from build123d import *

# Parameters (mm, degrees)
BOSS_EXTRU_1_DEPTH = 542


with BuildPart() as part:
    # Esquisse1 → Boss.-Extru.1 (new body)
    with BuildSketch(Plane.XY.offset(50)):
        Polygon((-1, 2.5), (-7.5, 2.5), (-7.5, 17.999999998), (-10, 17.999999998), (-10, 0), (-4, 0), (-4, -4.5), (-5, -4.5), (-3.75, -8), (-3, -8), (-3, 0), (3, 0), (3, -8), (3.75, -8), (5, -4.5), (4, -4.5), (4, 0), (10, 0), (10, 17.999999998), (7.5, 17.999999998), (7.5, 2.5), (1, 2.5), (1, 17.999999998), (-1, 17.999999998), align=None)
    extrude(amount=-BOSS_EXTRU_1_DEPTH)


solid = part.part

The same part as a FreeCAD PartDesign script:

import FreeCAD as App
import Part
import Sketcher
from FreeCAD import Vector


def add_polygon(sketch, points):
    """Adds a closed chain of lines whose ends are joined by coincident constraints."""
    first, n = sketch.GeometryCount, len(points)
    for a, b in zip(points, points[1:] + points[:1]):
        sketch.addGeometry(Part.LineSegment(App.Vector(*a, 0), App.Vector(*b, 0)), False)
    for i in range(n):
        sketch.addConstraint(Sketcher.Constraint("Coincident", first + i, 2, first + (i + 1) % n, 1))

doc = App.newDocument("Part")
body = doc.addObject("PartDesign::Body", "Body")

# Sketch on XY plane
sketch1 = doc.addObject("Sketcher::SketchObject", "Sketch")
body.addObject(sketch1)
sketch1.AttachmentSupport = (doc.XY_Plane, [""])
sketch1.MapMode = "FlatFace"
sketch1.AttachmentOffset = App.Placement(Vector(0, 0, 50), App.Rotation())
add_polygon(sketch1, [(-1, 2.5), (-7.5, 2.5), (-7.5, 18), (-10, 18), (-10, 0), (-4, 0), (-4, -4.5), (-5, -4.5), (-3.8, -8), (-3, -8), (-3, 0), (3, 0), (3, -8), (3.8, -8), (5, -4.5), (4, -4.5), (4, 0), (10, 0), (10, 18), (7.5, 18), (7.5, 2.5), (1, 2.5), (1, 18), (-1, 18)])  # lines 0-23
sketch1.addConstraint([
    Sketcher.Constraint("Horizontal", 0),
    Sketcher.Constraint("Vertical", 1),
    Sketcher.Constraint("Horizontal", 2),
    Sketcher.Constraint("Vertical", 3),
    Sketcher.Constraint("Horizontal", 4),
    Sketcher.Constraint("Vertical", 5),
    Sketcher.Constraint("Horizontal", 6),
    Sketcher.Constraint("Horizontal", 8),
    Sketcher.Constraint("Vertical", 9),
    Sketcher.Constraint("Horizontal", 10),
    Sketcher.Constraint("Vertical", 11),
    Sketcher.Constraint("Horizontal", 12),
    Sketcher.Constraint("Horizontal", 14),
    Sketcher.Constraint("Vertical", 15),
    Sketcher.Constraint("Horizontal", 16),
    Sketcher.Constraint("Vertical", 17),
    Sketcher.Constraint("Horizontal", 18),
    Sketcher.Constraint("Vertical", 19),
    Sketcher.Constraint("Horizontal", 20),
    Sketcher.Constraint("Vertical", 21),
    Sketcher.Constraint("Horizontal", 22),
    Sketcher.Constraint("Vertical", 23),
    Sketcher.Constraint("Symmetric", 9, 2, 10, 2, -1, 1),
    Sketcher.Constraint("Symmetric", 4, 2, 15, 2, -1, 1),
    Sketcher.Constraint("Symmetric", 7, 2, 12, 2, -2),
    Sketcher.Constraint("Symmetric", 6, 2, 13, 2, -2),
    Sketcher.Constraint("Symmetric", 3, 2, 16, 2, -2),
    Sketcher.Constraint("Symmetric", 1, 2, 18, 2, -2),
    Sketcher.Constraint("Symmetric", 20, 2, 23, 2, -2),
    Sketcher.Constraint("Horizontal", 18, 2, 21, 2),
    Sketcher.Constraint("Equal", 4, 10),
    Sketcher.Constraint("DistanceX", 4, 1, 4, 2, 6.0),
    Sketcher.Constraint("DistanceX", 6, 2, 6, 1, 1.0),
    Sketcher.Constraint("DistanceX", 22, 2, 22, 1, 2.0),
    Sketcher.Constraint("DistanceY", 3, 2, 3, 1, 18.0),
    Sketcher.Constraint("DistanceY", 9, 1, 9, 2, 8.0),
    Sketcher.Constraint("DistanceX", 0, 2, 0, 1, 6.5),
    Sketcher.Constraint("DistanceX", 2, 2, 2, 1, 2.5),
    Sketcher.Constraint("DistanceY", 1, 1, 1, 2, 15.5),
    Sketcher.Constraint("DistanceY", 5, 2, 5, 1, 4.5),
    Sketcher.Constraint("DistanceX", 8, 1, 8, 2, 0.75),
])
pad1 = doc.addObject("PartDesign::Pad", "Pad")
body.addObject(pad1)
pad1.Profile = sketch1
pad1.Length = 542
pad1.Reversed = True

doc.recompute()
